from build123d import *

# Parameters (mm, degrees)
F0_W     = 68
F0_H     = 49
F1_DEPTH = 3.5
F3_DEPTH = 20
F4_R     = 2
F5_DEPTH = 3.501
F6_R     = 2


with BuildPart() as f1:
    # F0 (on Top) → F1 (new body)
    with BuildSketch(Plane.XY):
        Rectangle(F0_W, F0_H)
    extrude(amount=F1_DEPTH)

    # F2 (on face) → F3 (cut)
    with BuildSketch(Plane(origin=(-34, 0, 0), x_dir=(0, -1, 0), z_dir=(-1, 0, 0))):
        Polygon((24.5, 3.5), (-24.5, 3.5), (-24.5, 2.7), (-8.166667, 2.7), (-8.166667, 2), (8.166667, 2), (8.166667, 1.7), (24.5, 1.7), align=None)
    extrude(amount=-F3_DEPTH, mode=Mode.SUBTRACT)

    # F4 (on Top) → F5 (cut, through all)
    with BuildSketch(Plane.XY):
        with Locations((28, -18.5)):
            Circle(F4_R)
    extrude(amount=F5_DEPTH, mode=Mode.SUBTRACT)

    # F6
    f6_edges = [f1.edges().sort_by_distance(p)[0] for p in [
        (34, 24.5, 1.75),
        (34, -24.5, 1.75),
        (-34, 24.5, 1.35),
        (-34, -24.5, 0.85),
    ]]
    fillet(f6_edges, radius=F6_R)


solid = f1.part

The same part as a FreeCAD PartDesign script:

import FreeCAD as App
import Part
import Sketcher

V = App.Vector


def edges_at(feature, points):
    """Names of the edges that pass closest to the given points."""
    edges = feature.Shape.Edges
    near = lambda p: min(range(len(edges)), key=lambda i: edges[i].distToShape(Part.Vertex(*p))[0])
    return sorted({f"Edge{near(p) + 1}" for p in points})


def add_polygon(sketch, points):
    """Adds a closed chain of lines whose ends are joined by coincident constraints."""
    first, n = sketch.GeometryCount, len(points)
    for a, b in zip(points, points[1:] + points[:1]):
        sketch.addGeometry(Part.LineSegment(App.Vector(*a, 0), App.Vector(*b, 0)), False)
    for i in range(n):
        sketch.addConstraint(Sketcher.Constraint("Coincident", first + i, 2, first + (i + 1) % n, 1))

doc = App.newDocument("Part")
body = doc.addObject("PartDesign::Body", "Body")

# Sketch on XY plane
sketch1 = body.newObject("Sketcher::SketchObject", "Sketch")
sketch1.AttachmentSupport = (doc.getObject("XY_Plane"), [""])
sketch1.MapMode = "FlatFace"
add_polygon(sketch1, [(-34, 24), (-34, -24), (34, -24), (34, 24)])  # lines 0-3
sketch1.addConstraint([
    Sketcher.Constraint("Vertical", 0),
    Sketcher.Constraint("Horizontal", 1),
    Sketcher.Constraint("Vertical", 2),
    Sketcher.Constraint("Horizontal", 3),
    Sketcher.Constraint("Symmetric", 0, 2, 2, 2, -1, 1),
    Sketcher.Constraint("DistanceX", 1, 1, 1, 2, 68.0),
    Sketcher.Constraint("DistanceY", 0, 2, 0, 1, 49.0),
])
pad1 = body.newObject("PartDesign::Pad", "Pad")
pad1.Profile = sketch1
pad1.Length = 3.5

# Sketch on YZ plane
sketch2 = body.newObject("Sketcher::SketchObject", "Sketch001")
sketch2.AttachmentSupport = (doc.getObject("YZ_Plane"), [""])
sketch2.MapMode = "FlatFace"
sketch2.AttachmentOffset = App.Placement(V(0, 0, -34), App.Rotation())
add_polygon(sketch2, [(-24.5, 3.5), (24.5, 3.5), (24.5, 2.7), (8.17, 2.7), (8.17, 2), (-8.17, 2), (-8.17, 1.7), (-24.5, 1.7)])  # lines 0-7
sketch2.addConstraint([
    Sketcher.Constraint("Horizontal", 0),
    Sketcher.Constraint("Vertical", 1),
    Sketcher.Constraint("Horizontal", 2),
    Sketcher.Constraint("Vertical", 3),
    Sketcher.Constraint("Horizontal", 4),
    Sketcher.Constraint("Vertical", 5),
    Sketcher.Constraint("Horizontal", 6),
    Sketcher.Constraint("Vertical", 7),
    Sketcher.Constraint("Equal", 2, 4),
    Sketcher.Constraint("Equal", 4, 6),
    Sketcher.Constraint("DistanceX", 0, 1, 0, 2, 49.0),
    Sketcher.Constraint("DistanceY", 1, 2, 1, 1, 0.8),
    Sketcher.Constraint("DistanceY", 3, 2, 3, 1, 0.7),
    Sketcher.Constraint("DistanceY", 5, 2, 5, 1, 0.3),
    Sketcher.Constraint("DistanceY", -1, 1, 3, 2, 2.0),
    Sketcher.Constraint("DistanceX", -1, 1, 0, 2, 24.5),
])
pocket1 = body.newObject("PartDesign::Pocket", "Pocket")
pocket1.Profile = sketch2
pocket1.Length = 20
pocket1.Reversed = True

# Sketch on XY plane
sketch3 = body.newObject("Sketcher::SketchObject", "Sketch002")
sketch3.AttachmentSupport = (doc.getObject("XY_Plane"), [""])
sketch3.MapMode = "FlatFace"
sketch3.addGeometry(Part.Circle(V(28, -18.5, 0), V(0, 0, 1), 2), False)
sketch3.addConstraint([
    Sketcher.Constraint("Diameter", 0, 4.0),
    Sketcher.Constraint("DistanceX", -1, 1, 0, 3, 28.0),
    Sketcher.Constraint("DistanceY", 0, 3, -1, 1, 18.5),
])
pocket2 = body.newObject("PartDesign::Pocket", "Pocket001")
pocket2.Profile = sketch3
pocket2.Type = "ThroughAll"
pocket2.Reversed = True
doc.recompute()

fillet = body.newObject("PartDesign::Fillet", "Fillet")
fillet.Base = (pocket2, edges_at(pocket2, [
    (34, 24.5, 1.75),
    (34, -24.5, 1.75),
    (-34, 24.5, 1.35),
    (-34, -24.5, 0.85),
]))
fillet.Radius = 2

doc.recompute()
